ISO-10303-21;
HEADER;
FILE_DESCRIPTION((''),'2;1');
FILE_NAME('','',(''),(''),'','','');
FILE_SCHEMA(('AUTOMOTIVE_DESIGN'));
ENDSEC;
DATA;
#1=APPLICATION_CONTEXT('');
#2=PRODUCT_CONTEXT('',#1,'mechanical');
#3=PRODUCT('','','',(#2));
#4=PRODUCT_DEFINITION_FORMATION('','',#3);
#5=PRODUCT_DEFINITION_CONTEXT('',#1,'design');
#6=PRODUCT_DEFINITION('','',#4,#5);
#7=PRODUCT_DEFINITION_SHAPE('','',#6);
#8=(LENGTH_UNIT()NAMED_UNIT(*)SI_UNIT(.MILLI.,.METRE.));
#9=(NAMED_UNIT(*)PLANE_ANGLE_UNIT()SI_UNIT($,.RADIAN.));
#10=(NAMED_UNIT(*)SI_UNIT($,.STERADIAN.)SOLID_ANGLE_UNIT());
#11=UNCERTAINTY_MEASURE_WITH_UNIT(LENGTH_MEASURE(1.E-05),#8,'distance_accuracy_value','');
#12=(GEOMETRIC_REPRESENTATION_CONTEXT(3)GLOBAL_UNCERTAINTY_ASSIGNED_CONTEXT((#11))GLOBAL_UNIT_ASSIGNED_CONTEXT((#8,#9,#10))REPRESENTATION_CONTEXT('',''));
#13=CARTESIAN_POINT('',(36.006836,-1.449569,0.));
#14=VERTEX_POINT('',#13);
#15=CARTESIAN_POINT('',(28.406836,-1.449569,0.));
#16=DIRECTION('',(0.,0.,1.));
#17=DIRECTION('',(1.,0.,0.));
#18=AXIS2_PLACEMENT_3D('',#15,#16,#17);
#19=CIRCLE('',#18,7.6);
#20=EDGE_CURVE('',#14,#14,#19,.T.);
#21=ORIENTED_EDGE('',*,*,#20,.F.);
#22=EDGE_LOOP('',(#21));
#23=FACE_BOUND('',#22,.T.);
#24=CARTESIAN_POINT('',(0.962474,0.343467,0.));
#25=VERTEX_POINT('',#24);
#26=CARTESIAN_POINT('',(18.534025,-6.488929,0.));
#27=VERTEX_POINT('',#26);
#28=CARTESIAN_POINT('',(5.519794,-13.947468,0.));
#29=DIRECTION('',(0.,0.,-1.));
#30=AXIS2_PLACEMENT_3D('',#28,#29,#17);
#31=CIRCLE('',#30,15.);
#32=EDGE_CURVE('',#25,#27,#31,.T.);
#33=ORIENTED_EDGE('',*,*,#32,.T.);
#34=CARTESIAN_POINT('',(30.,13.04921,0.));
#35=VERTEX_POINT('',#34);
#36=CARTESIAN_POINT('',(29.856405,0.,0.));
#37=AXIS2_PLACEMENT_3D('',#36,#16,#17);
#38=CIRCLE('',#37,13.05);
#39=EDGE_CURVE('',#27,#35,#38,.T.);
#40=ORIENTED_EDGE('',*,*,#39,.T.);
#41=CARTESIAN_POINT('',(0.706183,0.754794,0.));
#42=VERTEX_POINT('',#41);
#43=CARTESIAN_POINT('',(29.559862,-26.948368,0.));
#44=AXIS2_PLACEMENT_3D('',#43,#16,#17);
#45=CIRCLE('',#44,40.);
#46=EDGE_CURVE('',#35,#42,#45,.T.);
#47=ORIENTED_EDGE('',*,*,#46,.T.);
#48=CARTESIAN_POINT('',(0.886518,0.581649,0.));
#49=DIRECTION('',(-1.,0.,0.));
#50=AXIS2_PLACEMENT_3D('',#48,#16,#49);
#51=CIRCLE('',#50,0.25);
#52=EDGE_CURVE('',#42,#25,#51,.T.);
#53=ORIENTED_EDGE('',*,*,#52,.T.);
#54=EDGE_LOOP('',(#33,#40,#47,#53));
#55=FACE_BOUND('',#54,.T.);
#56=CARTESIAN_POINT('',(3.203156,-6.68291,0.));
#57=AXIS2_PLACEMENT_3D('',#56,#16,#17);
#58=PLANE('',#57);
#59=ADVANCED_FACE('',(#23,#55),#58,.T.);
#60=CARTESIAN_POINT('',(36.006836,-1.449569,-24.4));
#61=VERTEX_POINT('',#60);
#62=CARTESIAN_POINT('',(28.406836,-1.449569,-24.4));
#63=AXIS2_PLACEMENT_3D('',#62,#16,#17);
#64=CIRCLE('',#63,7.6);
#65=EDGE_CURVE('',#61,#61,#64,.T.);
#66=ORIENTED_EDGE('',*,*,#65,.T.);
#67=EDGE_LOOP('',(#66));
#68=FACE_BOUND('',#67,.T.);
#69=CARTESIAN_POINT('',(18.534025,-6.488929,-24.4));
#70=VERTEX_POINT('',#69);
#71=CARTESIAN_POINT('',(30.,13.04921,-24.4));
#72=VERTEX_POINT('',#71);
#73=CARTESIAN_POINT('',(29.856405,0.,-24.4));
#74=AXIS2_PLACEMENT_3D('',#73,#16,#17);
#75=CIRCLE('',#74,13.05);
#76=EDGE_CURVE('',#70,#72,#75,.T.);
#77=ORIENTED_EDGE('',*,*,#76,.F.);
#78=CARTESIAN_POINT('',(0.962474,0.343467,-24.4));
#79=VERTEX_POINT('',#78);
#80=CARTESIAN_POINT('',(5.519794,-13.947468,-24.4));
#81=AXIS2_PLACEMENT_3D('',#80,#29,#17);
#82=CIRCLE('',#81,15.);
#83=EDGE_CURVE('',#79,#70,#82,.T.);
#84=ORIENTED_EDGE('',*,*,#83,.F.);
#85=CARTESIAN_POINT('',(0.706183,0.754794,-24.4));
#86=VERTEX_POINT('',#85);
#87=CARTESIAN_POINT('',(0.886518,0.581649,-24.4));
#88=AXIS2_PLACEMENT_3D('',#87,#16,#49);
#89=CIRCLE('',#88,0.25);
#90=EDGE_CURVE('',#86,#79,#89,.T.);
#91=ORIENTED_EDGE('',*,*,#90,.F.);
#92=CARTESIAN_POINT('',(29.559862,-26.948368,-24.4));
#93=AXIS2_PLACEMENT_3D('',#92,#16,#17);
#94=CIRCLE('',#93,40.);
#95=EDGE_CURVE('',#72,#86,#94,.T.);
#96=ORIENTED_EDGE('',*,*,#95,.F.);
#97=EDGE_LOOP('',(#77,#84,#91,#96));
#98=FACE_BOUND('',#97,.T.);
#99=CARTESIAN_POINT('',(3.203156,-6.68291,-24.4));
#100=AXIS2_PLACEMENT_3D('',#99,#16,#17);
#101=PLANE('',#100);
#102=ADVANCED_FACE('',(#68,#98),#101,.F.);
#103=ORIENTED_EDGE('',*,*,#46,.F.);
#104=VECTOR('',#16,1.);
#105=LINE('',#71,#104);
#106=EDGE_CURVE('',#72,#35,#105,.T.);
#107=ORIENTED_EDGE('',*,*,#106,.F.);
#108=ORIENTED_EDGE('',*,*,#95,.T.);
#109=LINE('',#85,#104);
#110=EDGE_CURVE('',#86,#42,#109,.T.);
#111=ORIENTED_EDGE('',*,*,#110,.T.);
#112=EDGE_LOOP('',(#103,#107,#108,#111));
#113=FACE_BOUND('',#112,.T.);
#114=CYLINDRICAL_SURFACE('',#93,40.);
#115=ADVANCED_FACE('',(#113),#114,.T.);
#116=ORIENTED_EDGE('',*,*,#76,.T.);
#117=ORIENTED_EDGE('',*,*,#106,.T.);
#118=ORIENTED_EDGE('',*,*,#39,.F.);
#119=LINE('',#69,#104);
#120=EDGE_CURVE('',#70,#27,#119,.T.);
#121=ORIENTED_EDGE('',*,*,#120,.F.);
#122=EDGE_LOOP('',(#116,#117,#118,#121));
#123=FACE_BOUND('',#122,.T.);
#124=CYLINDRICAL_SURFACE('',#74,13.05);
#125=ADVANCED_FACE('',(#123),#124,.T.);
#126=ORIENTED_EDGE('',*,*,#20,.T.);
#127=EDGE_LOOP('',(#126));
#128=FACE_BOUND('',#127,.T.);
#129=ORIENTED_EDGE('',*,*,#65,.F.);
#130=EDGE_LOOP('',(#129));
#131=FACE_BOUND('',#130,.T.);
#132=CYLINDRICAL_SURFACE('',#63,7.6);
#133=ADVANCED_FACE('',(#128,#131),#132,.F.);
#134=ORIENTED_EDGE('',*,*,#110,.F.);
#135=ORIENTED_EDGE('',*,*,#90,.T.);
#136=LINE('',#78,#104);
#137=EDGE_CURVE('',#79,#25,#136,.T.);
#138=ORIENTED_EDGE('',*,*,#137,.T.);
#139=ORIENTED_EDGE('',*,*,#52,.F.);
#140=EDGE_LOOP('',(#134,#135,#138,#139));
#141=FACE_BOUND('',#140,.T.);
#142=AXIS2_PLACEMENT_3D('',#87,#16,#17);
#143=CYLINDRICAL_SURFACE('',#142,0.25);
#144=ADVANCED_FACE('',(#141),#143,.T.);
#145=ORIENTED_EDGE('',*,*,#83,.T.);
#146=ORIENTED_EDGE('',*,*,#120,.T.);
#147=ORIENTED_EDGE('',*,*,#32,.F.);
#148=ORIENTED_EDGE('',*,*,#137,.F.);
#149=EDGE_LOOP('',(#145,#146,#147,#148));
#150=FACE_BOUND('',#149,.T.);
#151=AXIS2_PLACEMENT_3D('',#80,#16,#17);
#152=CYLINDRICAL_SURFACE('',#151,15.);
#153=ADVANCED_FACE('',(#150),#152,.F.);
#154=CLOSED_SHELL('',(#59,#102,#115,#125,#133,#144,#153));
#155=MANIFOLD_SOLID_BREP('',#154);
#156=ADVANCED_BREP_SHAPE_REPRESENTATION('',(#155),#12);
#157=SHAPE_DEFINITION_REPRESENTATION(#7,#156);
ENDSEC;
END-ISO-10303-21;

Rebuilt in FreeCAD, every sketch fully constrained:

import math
import FreeCAD as App
import Part
import Sketcher

V = App.Vector
Q = App.Units.Quantity

doc = App.newDocument("Part")
params = doc.addObject("Spreadsheet::Sheet", "Params")
for row, (alias, value) in enumerate([
    ("sketch1_radius", "40 mm"),
    ("sketch1_radius2", "15 mm"),
    ("sketch1_diameter", "15.2 mm"),
    ("sketch1_radius3", "0.25 mm"),
    ("sketch1_radius4", "13.05 mm"),
    ("pad1_length", "24.4 mm"),
], start=1):
    params.set(f"A{row}", alias)
    params.set(f"B{row}", "=" + value)
    params.setAlias(f"B{row}", alias)

body = doc.addObject("PartDesign::Body", "Body")

# Sketch on XY plane
sketch1 = body.newObject("Sketcher::SketchObject", "Sketch")
sketch1.AttachmentSupport = (doc.getObject("XY_Plane"), [""])
sketch1.MapMode = "FlatFace"
sketch1.addGeometry([
    Part.ArcOfCircle(Part.Circle(V(29.56, -26.95, 0), V(0, 0, 1), 40), math.radians(89), math.radians(136)),  # 0
    Part.ArcOfCircle(Part.Circle(V(0.89, 0.58, 0), V(0, 0, 1), 0.25), math.radians(136), math.radians(288)),  # 1
    Part.ArcOfCircle(Part.Circle(V(5.52, -13.95, 0), V(0, 0, 1), 15), math.radians(30), math.radians(108)),  # 2
    Part.ArcOfCircle(Part.Circle(V(29.86, 0, 0), V(0, 0, 1), 13.05), math.radians(-150), math.radians(89)),  # 3
    Part.Circle(V(28.41, -1.45, 0), V(0, 0, 1), 7.6),  # 4
], False)
sketch1.addConstraint([
    Sketcher.Constraint("Tangent", 0, 2, 1, 1),
    Sketcher.Constraint("Tangent", 1, 2, 2, 2),
    Sketcher.Constraint("Tangent", 2, 1, 3, 1),
    Sketcher.Constraint("Tangent", 3, 2, 0, 1),
    Sketcher.Constraint("PointOnObject", 3, 3, -1),
    Sketcher.Constraint("Radius", 0, Q("40 mm")),
    Sketcher.Constraint("Radius", 2, Q("15 mm")),
    Sketcher.Constraint("Diameter", 4, Q("15.2 mm")),
    Sketcher.Constraint("Radius", 1, Q("0.25 mm")),
    Sketcher.Constraint("Radius", 3, Q("13.05 mm")),
    Sketcher.Constraint("DistanceX", -1, 1, 3, 2, Q("30 mm")),
    Sketcher.Constraint("DistanceY", 0, 3, 2, 3, Q("13.0009 mm")),
    Sketcher.Constraint("DistanceY", 0, 3, 4, 3, Q("25.4988 mm")),
    Sketcher.Constraint("DistanceX", -1, 1, 0, 3, Q("29.559862 mm")),
    Sketcher.Constraint("DistanceX", 4, 3, 3, 3, Q("1.449569 mm")),
])
sketch1.setExpression("Constraints[5]", "Params.sketch1_radius")
sketch1.setExpression("Constraints[6]", "Params.sketch1_radius2")
sketch1.setExpression("Constraints[7]", "Params.sketch1_diameter")
sketch1.setExpression("Constraints[8]", "Params.sketch1_radius3")
sketch1.setExpression("Constraints[9]", "Params.sketch1_radius4")
pad1 = body.newObject("PartDesign::Pad", "Pad")
pad1.Profile = sketch1
pad1.setExpression("Length", "Params.pad1_length")
pad1.Reversed = True

doc.recompute()
